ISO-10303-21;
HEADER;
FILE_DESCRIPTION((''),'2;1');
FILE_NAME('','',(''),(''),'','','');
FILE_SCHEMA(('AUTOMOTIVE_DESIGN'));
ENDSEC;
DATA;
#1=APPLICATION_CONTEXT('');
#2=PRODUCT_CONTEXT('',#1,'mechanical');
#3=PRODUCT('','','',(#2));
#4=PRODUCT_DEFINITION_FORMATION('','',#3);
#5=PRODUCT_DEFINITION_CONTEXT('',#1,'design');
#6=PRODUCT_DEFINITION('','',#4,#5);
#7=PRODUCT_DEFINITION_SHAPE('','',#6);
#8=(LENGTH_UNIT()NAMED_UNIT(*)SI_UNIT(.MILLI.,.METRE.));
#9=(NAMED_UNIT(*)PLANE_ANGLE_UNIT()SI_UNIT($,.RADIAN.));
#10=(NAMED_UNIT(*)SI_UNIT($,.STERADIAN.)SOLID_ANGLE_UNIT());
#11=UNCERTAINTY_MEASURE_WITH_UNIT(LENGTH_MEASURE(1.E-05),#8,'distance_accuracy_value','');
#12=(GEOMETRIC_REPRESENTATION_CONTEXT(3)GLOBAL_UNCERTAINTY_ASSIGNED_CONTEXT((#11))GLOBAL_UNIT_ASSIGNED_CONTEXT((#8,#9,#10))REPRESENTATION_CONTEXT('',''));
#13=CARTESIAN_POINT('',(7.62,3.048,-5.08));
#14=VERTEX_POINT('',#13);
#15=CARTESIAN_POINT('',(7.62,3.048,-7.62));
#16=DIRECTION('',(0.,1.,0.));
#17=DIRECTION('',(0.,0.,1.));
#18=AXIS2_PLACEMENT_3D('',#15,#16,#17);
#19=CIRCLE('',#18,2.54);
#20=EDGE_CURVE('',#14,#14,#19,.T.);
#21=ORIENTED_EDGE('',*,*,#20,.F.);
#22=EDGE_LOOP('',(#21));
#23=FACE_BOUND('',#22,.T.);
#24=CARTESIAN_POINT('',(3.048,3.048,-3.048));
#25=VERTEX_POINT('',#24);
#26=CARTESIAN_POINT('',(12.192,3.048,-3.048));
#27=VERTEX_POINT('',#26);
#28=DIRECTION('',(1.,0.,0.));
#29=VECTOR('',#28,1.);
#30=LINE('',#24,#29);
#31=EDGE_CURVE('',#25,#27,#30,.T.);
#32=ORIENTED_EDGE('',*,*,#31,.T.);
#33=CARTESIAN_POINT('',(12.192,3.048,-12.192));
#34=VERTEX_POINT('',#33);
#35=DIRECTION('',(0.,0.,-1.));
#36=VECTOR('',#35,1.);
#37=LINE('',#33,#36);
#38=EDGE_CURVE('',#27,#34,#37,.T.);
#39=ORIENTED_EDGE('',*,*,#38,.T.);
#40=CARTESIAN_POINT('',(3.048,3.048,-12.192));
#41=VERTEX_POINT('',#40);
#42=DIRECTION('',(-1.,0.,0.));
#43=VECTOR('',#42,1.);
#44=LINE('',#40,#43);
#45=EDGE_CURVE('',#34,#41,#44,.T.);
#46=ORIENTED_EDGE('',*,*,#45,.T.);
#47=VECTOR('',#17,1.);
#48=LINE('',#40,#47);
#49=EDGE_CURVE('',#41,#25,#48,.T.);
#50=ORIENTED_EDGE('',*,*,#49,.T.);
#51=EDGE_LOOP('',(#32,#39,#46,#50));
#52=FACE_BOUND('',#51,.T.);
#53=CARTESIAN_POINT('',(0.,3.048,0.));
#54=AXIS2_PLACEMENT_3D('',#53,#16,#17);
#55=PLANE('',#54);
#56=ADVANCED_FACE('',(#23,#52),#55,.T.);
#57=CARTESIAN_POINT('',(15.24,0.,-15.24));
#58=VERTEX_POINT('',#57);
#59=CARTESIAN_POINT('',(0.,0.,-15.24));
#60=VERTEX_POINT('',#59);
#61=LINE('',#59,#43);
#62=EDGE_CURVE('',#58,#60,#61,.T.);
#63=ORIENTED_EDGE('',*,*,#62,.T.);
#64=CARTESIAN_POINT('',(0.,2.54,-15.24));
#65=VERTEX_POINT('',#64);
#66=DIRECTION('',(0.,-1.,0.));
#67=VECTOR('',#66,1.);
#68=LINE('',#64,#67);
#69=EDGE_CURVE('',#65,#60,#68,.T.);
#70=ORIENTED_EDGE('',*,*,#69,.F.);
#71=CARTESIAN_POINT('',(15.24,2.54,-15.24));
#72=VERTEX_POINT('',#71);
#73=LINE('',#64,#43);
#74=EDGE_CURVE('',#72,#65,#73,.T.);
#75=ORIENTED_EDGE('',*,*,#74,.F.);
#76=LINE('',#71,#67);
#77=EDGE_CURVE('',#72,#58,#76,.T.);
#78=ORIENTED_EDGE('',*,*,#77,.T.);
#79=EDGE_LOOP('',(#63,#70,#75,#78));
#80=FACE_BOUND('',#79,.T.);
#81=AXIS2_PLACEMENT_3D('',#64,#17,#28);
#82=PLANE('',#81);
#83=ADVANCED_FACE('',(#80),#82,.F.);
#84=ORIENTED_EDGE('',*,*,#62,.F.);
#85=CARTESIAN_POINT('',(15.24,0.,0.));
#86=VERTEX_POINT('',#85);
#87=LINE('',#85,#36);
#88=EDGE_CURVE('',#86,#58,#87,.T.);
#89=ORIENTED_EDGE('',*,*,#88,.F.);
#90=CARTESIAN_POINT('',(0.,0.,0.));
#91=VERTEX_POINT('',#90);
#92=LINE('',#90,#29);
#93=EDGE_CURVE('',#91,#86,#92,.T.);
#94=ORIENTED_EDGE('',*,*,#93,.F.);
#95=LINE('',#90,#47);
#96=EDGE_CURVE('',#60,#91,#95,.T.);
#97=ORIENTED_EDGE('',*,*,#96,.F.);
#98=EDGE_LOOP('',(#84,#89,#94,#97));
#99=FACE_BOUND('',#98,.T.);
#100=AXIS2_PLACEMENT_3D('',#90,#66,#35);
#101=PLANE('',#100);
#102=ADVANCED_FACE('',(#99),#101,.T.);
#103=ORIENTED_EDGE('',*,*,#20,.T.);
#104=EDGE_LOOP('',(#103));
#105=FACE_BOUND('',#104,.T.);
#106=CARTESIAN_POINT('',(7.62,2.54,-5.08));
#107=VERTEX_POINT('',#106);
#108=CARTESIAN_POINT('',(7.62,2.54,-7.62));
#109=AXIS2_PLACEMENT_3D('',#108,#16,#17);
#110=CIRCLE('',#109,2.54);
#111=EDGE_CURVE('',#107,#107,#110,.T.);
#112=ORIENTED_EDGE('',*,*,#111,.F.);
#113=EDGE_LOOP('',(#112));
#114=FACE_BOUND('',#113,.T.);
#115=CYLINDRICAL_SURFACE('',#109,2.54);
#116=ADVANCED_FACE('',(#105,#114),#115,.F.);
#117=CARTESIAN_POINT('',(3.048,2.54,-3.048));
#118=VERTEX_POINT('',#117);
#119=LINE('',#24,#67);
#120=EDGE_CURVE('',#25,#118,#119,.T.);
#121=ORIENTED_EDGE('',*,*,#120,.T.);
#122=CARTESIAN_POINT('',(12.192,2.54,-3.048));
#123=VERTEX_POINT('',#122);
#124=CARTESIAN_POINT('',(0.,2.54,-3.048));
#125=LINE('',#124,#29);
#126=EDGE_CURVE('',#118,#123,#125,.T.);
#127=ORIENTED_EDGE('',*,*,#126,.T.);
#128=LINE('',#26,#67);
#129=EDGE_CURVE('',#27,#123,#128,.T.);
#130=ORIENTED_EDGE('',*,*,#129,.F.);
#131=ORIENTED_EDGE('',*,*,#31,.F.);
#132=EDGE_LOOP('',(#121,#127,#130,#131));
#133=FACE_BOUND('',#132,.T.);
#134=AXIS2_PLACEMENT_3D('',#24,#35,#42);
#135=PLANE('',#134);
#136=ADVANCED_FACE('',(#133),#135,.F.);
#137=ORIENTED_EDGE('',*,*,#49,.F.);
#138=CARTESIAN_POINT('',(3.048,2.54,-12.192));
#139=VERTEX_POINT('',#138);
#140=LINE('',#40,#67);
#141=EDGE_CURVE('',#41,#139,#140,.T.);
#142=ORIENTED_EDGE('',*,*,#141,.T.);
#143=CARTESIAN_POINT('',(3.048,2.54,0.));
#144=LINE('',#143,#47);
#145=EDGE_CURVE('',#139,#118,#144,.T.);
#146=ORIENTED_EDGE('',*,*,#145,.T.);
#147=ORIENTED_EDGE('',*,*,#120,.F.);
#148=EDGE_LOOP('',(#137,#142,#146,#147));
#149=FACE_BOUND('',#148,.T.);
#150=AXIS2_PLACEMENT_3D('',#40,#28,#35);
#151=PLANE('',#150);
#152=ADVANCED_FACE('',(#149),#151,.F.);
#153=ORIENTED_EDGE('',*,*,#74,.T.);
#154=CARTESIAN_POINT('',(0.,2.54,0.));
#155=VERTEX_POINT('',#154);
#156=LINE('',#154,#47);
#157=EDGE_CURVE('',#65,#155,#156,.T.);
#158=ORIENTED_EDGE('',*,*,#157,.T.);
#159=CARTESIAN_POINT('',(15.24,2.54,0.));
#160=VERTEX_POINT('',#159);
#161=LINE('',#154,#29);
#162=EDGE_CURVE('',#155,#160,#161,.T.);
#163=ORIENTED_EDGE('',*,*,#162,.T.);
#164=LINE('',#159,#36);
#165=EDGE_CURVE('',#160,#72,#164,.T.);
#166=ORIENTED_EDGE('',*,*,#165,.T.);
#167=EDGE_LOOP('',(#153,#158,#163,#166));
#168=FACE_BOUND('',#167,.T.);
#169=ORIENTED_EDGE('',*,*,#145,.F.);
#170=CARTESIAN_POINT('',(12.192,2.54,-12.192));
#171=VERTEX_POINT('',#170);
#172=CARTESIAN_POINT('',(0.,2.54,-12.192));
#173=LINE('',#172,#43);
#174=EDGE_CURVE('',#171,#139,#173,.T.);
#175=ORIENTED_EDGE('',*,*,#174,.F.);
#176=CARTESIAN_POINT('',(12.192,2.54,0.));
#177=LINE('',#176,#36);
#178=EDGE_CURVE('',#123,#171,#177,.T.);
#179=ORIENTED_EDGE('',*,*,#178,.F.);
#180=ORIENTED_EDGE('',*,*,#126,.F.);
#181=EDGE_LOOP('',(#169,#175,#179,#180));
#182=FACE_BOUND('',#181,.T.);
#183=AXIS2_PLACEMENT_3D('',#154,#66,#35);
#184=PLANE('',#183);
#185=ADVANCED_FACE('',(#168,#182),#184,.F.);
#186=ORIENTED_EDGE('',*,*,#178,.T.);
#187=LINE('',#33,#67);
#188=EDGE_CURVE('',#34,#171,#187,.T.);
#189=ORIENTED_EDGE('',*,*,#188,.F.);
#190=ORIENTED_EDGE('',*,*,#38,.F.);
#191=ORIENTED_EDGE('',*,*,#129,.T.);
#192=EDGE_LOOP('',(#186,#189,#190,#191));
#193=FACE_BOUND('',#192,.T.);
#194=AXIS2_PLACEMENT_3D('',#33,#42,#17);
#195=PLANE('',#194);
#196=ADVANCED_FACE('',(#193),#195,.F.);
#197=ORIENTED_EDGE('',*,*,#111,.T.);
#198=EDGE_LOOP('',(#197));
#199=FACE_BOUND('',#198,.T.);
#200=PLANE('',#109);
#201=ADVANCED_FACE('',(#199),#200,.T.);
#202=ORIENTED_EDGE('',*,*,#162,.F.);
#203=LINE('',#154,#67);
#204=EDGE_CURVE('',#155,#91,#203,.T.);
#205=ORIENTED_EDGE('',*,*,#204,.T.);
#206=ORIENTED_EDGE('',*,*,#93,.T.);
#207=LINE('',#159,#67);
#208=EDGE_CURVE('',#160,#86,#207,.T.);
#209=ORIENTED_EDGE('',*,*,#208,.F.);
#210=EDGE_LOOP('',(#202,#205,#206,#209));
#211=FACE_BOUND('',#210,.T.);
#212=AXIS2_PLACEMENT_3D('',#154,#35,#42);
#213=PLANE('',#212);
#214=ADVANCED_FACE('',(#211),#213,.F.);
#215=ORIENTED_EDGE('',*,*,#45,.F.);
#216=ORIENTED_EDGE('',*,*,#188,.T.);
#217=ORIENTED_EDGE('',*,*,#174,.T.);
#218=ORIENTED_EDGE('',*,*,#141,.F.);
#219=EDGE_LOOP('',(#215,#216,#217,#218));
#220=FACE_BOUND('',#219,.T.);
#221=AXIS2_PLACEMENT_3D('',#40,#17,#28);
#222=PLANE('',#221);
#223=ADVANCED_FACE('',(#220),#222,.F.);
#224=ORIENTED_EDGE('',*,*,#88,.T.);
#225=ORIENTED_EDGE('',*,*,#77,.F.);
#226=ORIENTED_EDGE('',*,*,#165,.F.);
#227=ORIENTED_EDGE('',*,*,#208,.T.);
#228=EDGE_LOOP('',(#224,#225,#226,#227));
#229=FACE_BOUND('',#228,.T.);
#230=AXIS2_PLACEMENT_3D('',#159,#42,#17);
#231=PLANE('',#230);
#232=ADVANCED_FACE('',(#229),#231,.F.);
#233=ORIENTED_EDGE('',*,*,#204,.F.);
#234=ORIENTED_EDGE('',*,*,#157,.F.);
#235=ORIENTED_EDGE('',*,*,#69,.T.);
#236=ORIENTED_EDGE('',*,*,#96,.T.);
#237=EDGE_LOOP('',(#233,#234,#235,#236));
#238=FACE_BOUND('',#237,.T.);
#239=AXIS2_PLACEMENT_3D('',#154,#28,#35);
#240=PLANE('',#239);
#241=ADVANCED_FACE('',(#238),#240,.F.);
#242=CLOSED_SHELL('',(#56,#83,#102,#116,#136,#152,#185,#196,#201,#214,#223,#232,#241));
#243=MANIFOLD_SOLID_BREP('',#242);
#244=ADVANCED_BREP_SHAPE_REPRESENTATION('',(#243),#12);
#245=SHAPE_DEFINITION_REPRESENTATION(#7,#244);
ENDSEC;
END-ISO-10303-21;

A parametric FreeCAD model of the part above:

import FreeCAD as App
import Part
import Sketcher
from FreeCAD import Vector
Q = App.Units.Quantity

doc = App.newDocument("Part")
body = doc.addObject("PartDesign::Body", "Body")

# Sketch on XZ plane
sketch1 = body.newObject("Sketcher::SketchObject", "Sketch")
sketch1.AttachmentSupport = (doc.getObject("XZ_Plane"), [""])
sketch1.MapMode = "FlatFace"
sketch1.addGeometry([
    Part.LineSegment(Vector(0, -15, 0), Vector(0, 0, 0)),
    Part.LineSegment(Vector(0, 0, 0), Vector(15, 0, 0)),
    Part.LineSegment(Vector(15, 0, 0), Vector(15, -15, 0)),
    Part.LineSegment(Vector(15, -15, 0), Vector(0, -15, 0)),
], False)
sketch1.addConstraint([
    Sketcher.Constraint("Coincident", 0, 2, 1, 1),
    Sketcher.Constraint("Coincident", 1, 2, 2, 1),
    Sketcher.Constraint("Coincident", 2, 2, 3, 1),
    Sketcher.Constraint("Coincident", 3, 2, 0, 1),
    Sketcher.Constraint("Vertical", 0),
    Sketcher.Constraint("Horizontal", 1),
    Sketcher.Constraint("Vertical", 2),
    Sketcher.Constraint("Horizontal", 3),
    Sketcher.Constraint("Coincident", 0, 2, -1, 1),
    Sketcher.Constraint("Equal", 3, 0),
    Sketcher.Constraint("DistanceX", 1, 1, 1, 2, Q("0.6 in")),
])
pad1 = body.newObject("PartDesign::Pad", "Pad")
pad1.Profile = sketch1
pad1.Length = Q("0.1 in")
pad1.Reversed = True

# Sketch on XZ plane
sketch2 = body.newObject("Sketcher::SketchObject", "Sketch001")
sketch2.AttachmentSupport = (doc.getObject("XZ_Plane"), [""])
sketch2.MapMode = "FlatFace"
sketch2.addGeometry([
    Part.LineSegment(Vector(3, -12, 0), Vector(3, -3, 0)),
    Part.LineSegment(Vector(3, -3, 0), Vector(12, -3, 0)),
    Part.LineSegment(Vector(12, -3, 0), Vector(12, -12, 0)),
    Part.LineSegment(Vector(12, -12, 0), Vector(3, -12, 0)),
], False)
sketch2.addConstraint([
    Sketcher.Constraint("Coincident", 0, 2, 1, 1),
    Sketcher.Constraint("Coincident", 1, 2, 2, 1),
    Sketcher.Constraint("Coincident", 2, 2, 3, 1),
    Sketcher.Constraint("Coincident", 3, 2, 0, 1),
    Sketcher.Constraint("Vertical", 0),
    Sketcher.Constraint("Horizontal", 1),
    Sketcher.Constraint("Vertical", 2),
    Sketcher.Constraint("Horizontal", 3),
    Sketcher.Constraint("Equal", 3, 0),
    Sketcher.Constraint("DistanceX", 1, 1, 1, 2, Q("0.36 in")),
    Sketcher.Constraint("DistanceX", -1, 1, 0, 2, Q("0.12 in")),
    Sketcher.Constraint("DistanceY", 0, 2, -1, 1, Q("0.12 in")),
])
pad2 = body.newObject("PartDesign::Pad", "Pad001")
pad2.Profile = sketch2
pad2.Length = Q("0.12 in")
pad2.Reversed = True

# Sketch on XZ plane
sketch3 = body.newObject("Sketcher::SketchObject", "Sketch002")
sketch3.AttachmentSupport = (doc.getObject("XZ_Plane"), [""])
sketch3.MapMode = "FlatFace"
sketch3.AttachmentOffset = App.Placement(Vector(0, 0, -0.12 * 25.4), App.Rotation())
sketch3.addGeometry(Part.Circle(Vector(7.6, -7.6, 0), Vector(0, 0, 1), 2.5), False)
sketch3.addConstraint([
    Sketcher.Constraint("Diameter", 0, Q("0.2 in")),
    Sketcher.Constraint("DistanceX", -1, 1, 0, 3, Q("0.3 in")),
    Sketcher.Constraint("DistanceY", 0, 3, -1, 1, Q("0.3 in")),
])
pocket1 = body.newObject("PartDesign::Pocket", "Pocket")
pocket1.Profile = sketch3
pocket1.Length = Q("0.02 in")
pocket1.Reversed = True

doc.recompute()
